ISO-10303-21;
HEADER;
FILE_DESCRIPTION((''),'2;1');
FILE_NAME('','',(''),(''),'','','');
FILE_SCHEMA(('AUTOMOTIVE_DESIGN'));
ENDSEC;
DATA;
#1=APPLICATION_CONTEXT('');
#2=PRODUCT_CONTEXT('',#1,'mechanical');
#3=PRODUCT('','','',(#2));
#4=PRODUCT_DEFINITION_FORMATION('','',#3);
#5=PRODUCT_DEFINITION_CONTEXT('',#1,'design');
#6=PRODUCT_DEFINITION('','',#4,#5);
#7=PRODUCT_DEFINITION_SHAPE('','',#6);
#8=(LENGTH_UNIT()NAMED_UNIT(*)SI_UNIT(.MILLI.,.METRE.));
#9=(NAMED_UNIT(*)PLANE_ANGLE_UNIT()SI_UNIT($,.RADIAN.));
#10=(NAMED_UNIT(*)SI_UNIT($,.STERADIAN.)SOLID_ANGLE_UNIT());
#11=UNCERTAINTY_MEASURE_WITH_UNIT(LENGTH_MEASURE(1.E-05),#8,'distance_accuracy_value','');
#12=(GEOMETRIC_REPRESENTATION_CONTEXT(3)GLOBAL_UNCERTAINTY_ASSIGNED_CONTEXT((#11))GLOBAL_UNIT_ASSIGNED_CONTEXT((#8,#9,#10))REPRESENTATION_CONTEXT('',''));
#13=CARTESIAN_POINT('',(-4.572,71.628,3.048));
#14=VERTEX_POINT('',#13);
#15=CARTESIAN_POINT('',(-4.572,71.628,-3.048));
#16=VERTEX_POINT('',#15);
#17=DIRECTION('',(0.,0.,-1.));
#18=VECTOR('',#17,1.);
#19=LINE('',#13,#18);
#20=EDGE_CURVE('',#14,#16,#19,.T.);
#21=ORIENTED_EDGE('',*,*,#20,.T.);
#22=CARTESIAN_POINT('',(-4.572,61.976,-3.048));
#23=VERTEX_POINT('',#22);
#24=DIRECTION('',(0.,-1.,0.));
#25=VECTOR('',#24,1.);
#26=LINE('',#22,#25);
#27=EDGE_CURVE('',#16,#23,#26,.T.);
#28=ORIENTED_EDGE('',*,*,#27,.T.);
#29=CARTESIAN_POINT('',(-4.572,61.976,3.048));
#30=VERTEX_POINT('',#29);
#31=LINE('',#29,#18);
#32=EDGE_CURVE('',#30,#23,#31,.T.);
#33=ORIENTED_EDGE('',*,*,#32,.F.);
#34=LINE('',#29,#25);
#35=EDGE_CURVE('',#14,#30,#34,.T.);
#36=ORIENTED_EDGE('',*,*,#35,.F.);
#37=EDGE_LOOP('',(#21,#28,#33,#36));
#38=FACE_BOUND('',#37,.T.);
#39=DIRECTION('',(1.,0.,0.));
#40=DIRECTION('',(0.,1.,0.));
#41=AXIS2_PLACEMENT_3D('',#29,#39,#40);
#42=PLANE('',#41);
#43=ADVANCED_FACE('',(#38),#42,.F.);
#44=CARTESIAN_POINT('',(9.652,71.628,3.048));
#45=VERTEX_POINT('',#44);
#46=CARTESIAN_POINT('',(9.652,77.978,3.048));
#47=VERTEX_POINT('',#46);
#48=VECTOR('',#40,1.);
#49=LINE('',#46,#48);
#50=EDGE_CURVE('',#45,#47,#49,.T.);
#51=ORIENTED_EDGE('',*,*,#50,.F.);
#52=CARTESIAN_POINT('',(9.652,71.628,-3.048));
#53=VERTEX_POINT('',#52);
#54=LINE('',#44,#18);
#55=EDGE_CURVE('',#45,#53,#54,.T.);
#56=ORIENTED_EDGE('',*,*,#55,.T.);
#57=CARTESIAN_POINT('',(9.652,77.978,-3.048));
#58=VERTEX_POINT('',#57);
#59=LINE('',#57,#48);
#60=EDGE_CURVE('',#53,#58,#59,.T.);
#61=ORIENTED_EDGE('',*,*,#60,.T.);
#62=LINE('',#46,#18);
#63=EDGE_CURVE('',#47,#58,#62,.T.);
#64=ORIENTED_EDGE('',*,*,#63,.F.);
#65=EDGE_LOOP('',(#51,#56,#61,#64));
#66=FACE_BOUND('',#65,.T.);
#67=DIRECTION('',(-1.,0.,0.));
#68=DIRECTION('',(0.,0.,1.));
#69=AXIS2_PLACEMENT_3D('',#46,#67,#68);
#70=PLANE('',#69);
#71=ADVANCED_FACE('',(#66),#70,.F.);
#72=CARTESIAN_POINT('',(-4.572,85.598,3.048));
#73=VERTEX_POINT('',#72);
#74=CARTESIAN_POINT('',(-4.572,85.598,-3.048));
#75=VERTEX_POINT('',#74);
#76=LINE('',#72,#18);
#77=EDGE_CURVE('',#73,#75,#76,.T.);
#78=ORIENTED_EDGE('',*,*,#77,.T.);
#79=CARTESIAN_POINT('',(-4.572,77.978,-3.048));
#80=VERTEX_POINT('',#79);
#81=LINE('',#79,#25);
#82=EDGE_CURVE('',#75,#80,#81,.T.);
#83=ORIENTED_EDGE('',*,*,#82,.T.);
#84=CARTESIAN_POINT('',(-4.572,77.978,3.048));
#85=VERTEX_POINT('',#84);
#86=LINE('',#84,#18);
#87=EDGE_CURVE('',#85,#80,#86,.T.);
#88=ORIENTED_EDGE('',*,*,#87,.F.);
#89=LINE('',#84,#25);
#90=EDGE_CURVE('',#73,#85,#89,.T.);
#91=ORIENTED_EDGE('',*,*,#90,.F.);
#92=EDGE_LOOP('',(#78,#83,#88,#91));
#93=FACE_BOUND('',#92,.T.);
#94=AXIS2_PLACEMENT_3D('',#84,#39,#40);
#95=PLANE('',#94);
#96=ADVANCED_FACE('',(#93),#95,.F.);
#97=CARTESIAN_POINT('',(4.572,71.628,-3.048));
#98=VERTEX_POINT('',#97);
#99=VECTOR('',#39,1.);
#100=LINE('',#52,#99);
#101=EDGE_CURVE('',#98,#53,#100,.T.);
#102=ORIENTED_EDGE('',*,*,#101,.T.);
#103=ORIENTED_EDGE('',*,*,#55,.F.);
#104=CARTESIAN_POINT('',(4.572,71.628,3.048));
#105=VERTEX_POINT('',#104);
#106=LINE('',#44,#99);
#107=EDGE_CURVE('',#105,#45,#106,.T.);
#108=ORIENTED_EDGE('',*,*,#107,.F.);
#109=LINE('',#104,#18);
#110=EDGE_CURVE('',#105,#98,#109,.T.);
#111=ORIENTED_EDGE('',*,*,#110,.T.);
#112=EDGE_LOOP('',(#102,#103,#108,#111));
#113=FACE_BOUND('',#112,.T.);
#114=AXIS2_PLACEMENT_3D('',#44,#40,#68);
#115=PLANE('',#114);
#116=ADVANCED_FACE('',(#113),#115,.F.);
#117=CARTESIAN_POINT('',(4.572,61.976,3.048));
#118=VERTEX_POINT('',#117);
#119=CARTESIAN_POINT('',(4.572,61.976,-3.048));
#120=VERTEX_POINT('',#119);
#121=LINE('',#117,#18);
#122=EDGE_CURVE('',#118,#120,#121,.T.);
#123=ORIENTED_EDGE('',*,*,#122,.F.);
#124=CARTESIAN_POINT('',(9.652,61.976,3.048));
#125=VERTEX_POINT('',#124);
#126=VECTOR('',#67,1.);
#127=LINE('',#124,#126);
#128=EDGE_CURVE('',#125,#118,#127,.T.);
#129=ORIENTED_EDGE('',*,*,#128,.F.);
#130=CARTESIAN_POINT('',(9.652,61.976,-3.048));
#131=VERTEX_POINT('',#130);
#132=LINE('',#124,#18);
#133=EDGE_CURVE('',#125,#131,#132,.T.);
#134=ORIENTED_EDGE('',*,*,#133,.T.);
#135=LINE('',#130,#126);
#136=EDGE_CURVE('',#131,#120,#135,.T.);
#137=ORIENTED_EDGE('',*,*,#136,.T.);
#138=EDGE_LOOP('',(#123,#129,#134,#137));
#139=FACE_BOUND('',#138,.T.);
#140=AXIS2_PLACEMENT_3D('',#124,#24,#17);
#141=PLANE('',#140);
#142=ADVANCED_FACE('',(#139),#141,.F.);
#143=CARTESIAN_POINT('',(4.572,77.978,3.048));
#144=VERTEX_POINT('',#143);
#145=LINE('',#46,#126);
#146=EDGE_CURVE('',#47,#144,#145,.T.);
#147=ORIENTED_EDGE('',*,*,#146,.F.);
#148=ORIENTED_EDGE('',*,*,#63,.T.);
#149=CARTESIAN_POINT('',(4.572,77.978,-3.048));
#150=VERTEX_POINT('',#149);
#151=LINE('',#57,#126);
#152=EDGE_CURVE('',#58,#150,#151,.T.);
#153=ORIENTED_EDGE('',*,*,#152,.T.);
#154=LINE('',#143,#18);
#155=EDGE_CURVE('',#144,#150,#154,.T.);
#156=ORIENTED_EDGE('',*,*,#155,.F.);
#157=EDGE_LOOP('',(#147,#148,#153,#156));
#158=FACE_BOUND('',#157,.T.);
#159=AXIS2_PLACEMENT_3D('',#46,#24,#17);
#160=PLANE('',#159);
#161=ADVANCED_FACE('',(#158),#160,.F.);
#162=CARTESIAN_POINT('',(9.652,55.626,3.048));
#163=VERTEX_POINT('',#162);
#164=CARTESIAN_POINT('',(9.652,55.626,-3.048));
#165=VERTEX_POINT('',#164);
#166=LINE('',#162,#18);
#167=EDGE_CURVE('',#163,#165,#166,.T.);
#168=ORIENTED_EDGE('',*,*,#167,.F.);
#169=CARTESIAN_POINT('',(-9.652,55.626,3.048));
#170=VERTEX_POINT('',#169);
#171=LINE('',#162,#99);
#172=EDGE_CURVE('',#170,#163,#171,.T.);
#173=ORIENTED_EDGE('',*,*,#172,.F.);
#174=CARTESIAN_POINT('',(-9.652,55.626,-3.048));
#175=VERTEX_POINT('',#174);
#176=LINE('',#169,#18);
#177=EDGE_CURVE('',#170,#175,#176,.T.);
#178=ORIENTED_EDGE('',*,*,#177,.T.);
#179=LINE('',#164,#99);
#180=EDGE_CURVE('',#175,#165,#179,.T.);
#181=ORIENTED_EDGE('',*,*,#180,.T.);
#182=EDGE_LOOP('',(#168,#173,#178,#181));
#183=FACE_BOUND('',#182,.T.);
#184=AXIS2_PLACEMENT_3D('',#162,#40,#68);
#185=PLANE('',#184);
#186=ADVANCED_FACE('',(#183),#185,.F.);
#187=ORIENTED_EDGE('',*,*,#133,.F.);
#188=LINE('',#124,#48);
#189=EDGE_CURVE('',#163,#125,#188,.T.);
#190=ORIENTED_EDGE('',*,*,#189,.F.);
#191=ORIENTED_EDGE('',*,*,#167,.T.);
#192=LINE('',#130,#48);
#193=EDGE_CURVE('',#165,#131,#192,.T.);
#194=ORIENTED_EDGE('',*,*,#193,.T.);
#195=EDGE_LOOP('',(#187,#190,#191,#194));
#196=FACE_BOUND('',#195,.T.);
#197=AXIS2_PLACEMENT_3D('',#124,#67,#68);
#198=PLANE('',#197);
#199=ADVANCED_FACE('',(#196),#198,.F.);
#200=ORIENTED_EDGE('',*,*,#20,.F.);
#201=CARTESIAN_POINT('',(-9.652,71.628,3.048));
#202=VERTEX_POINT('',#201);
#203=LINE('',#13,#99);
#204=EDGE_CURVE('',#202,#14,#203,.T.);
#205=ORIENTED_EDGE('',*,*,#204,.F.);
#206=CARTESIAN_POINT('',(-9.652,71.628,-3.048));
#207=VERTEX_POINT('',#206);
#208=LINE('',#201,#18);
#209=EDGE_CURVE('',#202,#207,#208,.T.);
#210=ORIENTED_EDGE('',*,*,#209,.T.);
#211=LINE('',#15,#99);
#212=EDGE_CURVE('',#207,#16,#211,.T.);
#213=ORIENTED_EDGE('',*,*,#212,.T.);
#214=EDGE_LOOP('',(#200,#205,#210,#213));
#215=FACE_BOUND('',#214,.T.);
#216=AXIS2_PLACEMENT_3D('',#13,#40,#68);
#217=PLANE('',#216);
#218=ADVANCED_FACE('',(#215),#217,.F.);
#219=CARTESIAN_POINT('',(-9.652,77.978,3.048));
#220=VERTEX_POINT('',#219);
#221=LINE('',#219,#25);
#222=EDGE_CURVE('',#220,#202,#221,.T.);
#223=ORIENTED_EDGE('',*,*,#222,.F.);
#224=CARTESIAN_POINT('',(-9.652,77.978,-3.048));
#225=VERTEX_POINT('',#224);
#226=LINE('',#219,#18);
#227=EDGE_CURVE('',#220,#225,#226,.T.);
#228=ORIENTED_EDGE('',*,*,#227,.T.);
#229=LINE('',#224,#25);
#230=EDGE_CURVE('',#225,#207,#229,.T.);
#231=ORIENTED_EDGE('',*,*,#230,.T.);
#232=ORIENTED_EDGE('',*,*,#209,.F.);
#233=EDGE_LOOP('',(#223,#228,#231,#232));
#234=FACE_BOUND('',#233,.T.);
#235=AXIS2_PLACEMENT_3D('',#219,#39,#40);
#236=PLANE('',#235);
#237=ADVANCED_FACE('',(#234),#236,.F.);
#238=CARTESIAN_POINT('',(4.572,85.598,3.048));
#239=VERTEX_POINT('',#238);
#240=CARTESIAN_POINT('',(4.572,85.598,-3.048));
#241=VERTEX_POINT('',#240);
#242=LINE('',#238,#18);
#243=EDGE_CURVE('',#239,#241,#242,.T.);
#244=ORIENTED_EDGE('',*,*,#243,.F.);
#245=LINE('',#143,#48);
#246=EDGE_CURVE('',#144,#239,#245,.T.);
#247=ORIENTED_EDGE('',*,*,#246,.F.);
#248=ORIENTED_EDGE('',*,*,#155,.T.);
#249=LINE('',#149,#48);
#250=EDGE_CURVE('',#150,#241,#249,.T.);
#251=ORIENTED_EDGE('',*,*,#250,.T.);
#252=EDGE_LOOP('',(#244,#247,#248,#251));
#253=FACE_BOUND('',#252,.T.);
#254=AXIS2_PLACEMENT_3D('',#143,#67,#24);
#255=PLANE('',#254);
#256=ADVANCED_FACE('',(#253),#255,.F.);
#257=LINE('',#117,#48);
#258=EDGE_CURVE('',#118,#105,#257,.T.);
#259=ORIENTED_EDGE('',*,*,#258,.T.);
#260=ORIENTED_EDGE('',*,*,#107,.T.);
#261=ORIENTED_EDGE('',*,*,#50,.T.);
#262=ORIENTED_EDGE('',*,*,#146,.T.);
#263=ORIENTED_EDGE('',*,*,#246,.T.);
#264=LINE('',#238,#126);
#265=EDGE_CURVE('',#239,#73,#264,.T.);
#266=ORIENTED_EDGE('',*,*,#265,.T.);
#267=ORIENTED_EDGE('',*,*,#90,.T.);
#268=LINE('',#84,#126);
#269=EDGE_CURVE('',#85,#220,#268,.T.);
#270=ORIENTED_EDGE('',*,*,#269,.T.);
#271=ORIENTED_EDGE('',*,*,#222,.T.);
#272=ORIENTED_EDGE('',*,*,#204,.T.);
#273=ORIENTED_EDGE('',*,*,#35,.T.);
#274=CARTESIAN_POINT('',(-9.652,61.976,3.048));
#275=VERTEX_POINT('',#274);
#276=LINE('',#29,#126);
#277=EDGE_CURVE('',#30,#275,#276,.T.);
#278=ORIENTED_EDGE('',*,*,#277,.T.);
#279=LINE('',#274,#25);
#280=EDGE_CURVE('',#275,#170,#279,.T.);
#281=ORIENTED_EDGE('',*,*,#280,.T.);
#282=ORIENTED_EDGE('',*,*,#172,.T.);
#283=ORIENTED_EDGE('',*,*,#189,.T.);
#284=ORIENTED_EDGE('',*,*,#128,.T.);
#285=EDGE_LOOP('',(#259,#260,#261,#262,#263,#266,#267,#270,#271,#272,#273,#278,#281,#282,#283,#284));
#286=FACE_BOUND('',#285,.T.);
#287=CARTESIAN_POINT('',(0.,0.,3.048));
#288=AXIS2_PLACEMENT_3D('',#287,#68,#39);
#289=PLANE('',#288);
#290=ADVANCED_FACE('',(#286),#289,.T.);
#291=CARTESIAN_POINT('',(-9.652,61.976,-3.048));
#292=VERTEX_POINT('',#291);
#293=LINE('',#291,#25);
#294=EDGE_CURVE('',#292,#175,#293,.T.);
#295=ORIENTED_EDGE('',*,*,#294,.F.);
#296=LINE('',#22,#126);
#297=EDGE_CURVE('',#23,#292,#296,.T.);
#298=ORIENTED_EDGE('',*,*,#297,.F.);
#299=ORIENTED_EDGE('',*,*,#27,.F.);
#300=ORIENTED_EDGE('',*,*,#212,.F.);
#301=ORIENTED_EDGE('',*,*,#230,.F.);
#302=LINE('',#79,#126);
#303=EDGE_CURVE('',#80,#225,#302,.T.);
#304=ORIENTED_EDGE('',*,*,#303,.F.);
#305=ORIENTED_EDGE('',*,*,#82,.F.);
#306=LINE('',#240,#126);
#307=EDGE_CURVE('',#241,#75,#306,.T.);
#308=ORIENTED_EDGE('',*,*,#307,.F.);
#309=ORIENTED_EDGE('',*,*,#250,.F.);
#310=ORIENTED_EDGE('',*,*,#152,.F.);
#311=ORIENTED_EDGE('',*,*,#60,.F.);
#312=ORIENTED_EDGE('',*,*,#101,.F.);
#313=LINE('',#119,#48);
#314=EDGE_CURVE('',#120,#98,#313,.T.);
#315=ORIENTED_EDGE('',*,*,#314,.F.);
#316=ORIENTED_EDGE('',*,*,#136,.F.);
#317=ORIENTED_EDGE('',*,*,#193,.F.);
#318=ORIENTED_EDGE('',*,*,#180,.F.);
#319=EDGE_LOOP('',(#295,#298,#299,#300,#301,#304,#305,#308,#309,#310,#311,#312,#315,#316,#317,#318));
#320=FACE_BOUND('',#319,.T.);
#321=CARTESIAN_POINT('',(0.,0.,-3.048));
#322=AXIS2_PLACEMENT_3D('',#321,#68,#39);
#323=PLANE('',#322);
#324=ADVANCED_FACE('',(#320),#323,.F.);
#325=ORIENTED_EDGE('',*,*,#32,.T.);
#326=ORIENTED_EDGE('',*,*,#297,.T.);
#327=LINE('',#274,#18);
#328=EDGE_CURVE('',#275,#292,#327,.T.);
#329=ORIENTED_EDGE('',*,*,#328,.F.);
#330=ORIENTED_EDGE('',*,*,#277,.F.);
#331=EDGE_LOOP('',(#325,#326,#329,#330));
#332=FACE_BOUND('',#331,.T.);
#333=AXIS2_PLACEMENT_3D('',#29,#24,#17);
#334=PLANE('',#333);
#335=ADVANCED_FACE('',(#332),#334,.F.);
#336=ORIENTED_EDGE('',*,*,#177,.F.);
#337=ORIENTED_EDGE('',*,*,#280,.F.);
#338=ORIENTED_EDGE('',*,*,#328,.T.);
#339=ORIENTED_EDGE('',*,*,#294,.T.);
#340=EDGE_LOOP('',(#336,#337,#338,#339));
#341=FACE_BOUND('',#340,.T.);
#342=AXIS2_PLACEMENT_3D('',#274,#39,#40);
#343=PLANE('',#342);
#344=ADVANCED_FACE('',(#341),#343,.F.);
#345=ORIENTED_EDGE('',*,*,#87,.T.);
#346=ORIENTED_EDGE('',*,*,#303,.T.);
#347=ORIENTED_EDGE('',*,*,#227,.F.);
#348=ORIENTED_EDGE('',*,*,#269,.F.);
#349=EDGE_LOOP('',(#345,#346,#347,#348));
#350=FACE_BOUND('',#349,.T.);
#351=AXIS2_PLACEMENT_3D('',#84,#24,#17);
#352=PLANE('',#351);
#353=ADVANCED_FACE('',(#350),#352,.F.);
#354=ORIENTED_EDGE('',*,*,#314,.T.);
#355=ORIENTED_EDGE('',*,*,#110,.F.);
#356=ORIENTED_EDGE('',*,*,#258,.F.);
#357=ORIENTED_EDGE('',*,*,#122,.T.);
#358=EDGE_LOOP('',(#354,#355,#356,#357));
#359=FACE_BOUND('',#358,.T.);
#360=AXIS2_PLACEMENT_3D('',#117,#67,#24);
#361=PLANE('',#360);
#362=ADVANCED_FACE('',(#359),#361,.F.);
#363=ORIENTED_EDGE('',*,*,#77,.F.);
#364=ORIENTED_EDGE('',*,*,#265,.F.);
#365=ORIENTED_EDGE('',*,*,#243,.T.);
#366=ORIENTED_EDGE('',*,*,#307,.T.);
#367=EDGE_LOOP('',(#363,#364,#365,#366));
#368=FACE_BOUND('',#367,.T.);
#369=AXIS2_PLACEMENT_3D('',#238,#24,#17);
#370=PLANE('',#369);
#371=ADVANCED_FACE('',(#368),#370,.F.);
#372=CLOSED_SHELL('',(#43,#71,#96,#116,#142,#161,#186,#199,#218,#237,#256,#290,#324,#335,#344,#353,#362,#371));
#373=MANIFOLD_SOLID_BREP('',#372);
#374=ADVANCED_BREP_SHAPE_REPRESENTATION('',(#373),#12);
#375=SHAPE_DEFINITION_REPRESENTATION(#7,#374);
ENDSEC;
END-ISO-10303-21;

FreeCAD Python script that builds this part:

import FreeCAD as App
import Part
import Sketcher
from FreeCAD import Vector
Q = App.Units.Quantity

doc = App.newDocument("Part")
body = doc.addObject("PartDesign::Body", "Body")

# Sketch on XY plane
sketch1 = body.newObject("Sketcher::SketchObject", "Sketch")
sketch1.AttachmentSupport = (doc.getObject("XY_Plane"), [""])
sketch1.MapMode = "FlatFace"
sketch1.addGeometry([
    Part.LineSegment(Vector(5, 62, 0), Vector(5, 72, 0)),  # 0
    Part.LineSegment(Vector(5, 72, 0), Vector(10, 72, 0)),  # 1
    Part.LineSegment(Vector(10, 72, 0), Vector(10, 78, 0)),  # 2
    Part.LineSegment(Vector(10, 78, 0), Vector(5, 78, 0)),  # 3
    Part.LineSegment(Vector(5, 78, 0), Vector(5, 86, 0)),  # 4
    Part.LineSegment(Vector(5, 86, 0), Vector(-5, 86, 0)),  # 5
    Part.LineSegment(Vector(-5, 86, 0), Vector(-5, 78, 0)),  # 6
    Part.LineSegment(Vector(-5, 78, 0), Vector(-10, 78, 0)),  # 7
    Part.LineSegment(Vector(-10, 78, 0), Vector(-10, 72, 0)),  # 8
    Part.LineSegment(Vector(-10, 72, 0), Vector(-5, 72, 0)),  # 9
    Part.LineSegment(Vector(-5, 72, 0), Vector(-5, 62, 0)),  # 10
    Part.LineSegment(Vector(-5, 62, 0), Vector(-10, 62, 0)),  # 11
    Part.LineSegment(Vector(-10, 62, 0), Vector(-10, 56, 0)),  # 12
    Part.LineSegment(Vector(-10, 56, 0), Vector(10, 56, 0)),  # 13
    Part.LineSegment(Vector(10, 56, 0), Vector(10, 62, 0)),  # 14
    Part.LineSegment(Vector(10, 62, 0), Vector(5, 62, 0)),  # 15
], False)
sketch1.addConstraint([
    Sketcher.Constraint("Coincident", 0, 2, 1, 1),
    Sketcher.Constraint("Coincident", 1, 2, 2, 1),
    Sketcher.Constraint("Coincident", 2, 2, 3, 1),
    Sketcher.Constraint("Coincident", 3, 2, 4, 1),
    Sketcher.Constraint("Coincident", 4, 2, 5, 1),
    Sketcher.Constraint("Coincident", 5, 2, 6, 1),
    Sketcher.Constraint("Coincident", 6, 2, 7, 1),
    Sketcher.Constraint("Coincident", 7, 2, 8, 1),
    Sketcher.Constraint("Coincident", 8, 2, 9, 1),
    Sketcher.Constraint("Coincident", 9, 2, 10, 1),
    Sketcher.Constraint("Coincident", 10, 2, 11, 1),
    Sketcher.Constraint("Coincident", 11, 2, 12, 1),
    Sketcher.Constraint("Coincident", 12, 2, 13, 1),
    Sketcher.Constraint("Coincident", 13, 2, 14, 1),
    Sketcher.Constraint("Coincident", 14, 2, 15, 1),
    Sketcher.Constraint("Coincident", 15, 2, 0, 1),
    Sketcher.Constraint("Vertical", 0),
    Sketcher.Constraint("Horizontal", 1),
    Sketcher.Constraint("Vertical", 2),
    Sketcher.Constraint("Horizontal", 3),
    Sketcher.Constraint("Vertical", 4),
    Sketcher.Constraint("Horizontal", 5),
    Sketcher.Constraint("Vertical", 6),
    Sketcher.Constraint("Horizontal", 7),
    Sketcher.Constraint("Vertical", 8),
    Sketcher.Constraint("Horizontal", 9),
    Sketcher.Constraint("Vertical", 10),
    Sketcher.Constraint("Horizontal", 11),
    Sketcher.Constraint("Vertical", 12),
    Sketcher.Constraint("Horizontal", 13),
    Sketcher.Constraint("Vertical", 14),
    Sketcher.Constraint("Horizontal", 15),
    Sketcher.Constraint("Symmetric", 3, 2, 6, 2, -2),
    Sketcher.Constraint("Symmetric", 1, 2, 8, 2, -2),
    Sketcher.Constraint("Symmetric", 11, 2, 14, 2, -2),
    Sketcher.Constraint("Vertical", 0, 2, 3, 2),
    Sketcher.Constraint("Vertical", 6, 2, 9, 2),
    Sketcher.Constraint("Vertical", 8, 2, 11, 2),
    Sketcher.Constraint("Equal", 8, 12),
    Sketcher.Constraint("DistanceX", 1, 1, 1, 2, Q("0.2 in")),
    Sketcher.Constraint("DistanceY", 4, 1, 4, 2, Q("0.3 in")),
    Sketcher.Constraint("DistanceX", 5, 2, 5, 1, Q("0.36 in")),
    Sketcher.Constraint("DistanceY", 0, 1, 0, 2, Q("0.38 in")),
    Sketcher.Constraint("DistanceY", 2, 1, 2, 2, Q("0.25 in")),
    Sketcher.Constraint("DistanceY", -1, 1, 0, 2, Q("2.82 in")),
])
pad1 = body.newObject("PartDesign::Pad", "Pad")
pad1.Profile = sketch1
pad1.Length = Q("0.24 in")
pad1.Midplane = True

doc.recompute()
